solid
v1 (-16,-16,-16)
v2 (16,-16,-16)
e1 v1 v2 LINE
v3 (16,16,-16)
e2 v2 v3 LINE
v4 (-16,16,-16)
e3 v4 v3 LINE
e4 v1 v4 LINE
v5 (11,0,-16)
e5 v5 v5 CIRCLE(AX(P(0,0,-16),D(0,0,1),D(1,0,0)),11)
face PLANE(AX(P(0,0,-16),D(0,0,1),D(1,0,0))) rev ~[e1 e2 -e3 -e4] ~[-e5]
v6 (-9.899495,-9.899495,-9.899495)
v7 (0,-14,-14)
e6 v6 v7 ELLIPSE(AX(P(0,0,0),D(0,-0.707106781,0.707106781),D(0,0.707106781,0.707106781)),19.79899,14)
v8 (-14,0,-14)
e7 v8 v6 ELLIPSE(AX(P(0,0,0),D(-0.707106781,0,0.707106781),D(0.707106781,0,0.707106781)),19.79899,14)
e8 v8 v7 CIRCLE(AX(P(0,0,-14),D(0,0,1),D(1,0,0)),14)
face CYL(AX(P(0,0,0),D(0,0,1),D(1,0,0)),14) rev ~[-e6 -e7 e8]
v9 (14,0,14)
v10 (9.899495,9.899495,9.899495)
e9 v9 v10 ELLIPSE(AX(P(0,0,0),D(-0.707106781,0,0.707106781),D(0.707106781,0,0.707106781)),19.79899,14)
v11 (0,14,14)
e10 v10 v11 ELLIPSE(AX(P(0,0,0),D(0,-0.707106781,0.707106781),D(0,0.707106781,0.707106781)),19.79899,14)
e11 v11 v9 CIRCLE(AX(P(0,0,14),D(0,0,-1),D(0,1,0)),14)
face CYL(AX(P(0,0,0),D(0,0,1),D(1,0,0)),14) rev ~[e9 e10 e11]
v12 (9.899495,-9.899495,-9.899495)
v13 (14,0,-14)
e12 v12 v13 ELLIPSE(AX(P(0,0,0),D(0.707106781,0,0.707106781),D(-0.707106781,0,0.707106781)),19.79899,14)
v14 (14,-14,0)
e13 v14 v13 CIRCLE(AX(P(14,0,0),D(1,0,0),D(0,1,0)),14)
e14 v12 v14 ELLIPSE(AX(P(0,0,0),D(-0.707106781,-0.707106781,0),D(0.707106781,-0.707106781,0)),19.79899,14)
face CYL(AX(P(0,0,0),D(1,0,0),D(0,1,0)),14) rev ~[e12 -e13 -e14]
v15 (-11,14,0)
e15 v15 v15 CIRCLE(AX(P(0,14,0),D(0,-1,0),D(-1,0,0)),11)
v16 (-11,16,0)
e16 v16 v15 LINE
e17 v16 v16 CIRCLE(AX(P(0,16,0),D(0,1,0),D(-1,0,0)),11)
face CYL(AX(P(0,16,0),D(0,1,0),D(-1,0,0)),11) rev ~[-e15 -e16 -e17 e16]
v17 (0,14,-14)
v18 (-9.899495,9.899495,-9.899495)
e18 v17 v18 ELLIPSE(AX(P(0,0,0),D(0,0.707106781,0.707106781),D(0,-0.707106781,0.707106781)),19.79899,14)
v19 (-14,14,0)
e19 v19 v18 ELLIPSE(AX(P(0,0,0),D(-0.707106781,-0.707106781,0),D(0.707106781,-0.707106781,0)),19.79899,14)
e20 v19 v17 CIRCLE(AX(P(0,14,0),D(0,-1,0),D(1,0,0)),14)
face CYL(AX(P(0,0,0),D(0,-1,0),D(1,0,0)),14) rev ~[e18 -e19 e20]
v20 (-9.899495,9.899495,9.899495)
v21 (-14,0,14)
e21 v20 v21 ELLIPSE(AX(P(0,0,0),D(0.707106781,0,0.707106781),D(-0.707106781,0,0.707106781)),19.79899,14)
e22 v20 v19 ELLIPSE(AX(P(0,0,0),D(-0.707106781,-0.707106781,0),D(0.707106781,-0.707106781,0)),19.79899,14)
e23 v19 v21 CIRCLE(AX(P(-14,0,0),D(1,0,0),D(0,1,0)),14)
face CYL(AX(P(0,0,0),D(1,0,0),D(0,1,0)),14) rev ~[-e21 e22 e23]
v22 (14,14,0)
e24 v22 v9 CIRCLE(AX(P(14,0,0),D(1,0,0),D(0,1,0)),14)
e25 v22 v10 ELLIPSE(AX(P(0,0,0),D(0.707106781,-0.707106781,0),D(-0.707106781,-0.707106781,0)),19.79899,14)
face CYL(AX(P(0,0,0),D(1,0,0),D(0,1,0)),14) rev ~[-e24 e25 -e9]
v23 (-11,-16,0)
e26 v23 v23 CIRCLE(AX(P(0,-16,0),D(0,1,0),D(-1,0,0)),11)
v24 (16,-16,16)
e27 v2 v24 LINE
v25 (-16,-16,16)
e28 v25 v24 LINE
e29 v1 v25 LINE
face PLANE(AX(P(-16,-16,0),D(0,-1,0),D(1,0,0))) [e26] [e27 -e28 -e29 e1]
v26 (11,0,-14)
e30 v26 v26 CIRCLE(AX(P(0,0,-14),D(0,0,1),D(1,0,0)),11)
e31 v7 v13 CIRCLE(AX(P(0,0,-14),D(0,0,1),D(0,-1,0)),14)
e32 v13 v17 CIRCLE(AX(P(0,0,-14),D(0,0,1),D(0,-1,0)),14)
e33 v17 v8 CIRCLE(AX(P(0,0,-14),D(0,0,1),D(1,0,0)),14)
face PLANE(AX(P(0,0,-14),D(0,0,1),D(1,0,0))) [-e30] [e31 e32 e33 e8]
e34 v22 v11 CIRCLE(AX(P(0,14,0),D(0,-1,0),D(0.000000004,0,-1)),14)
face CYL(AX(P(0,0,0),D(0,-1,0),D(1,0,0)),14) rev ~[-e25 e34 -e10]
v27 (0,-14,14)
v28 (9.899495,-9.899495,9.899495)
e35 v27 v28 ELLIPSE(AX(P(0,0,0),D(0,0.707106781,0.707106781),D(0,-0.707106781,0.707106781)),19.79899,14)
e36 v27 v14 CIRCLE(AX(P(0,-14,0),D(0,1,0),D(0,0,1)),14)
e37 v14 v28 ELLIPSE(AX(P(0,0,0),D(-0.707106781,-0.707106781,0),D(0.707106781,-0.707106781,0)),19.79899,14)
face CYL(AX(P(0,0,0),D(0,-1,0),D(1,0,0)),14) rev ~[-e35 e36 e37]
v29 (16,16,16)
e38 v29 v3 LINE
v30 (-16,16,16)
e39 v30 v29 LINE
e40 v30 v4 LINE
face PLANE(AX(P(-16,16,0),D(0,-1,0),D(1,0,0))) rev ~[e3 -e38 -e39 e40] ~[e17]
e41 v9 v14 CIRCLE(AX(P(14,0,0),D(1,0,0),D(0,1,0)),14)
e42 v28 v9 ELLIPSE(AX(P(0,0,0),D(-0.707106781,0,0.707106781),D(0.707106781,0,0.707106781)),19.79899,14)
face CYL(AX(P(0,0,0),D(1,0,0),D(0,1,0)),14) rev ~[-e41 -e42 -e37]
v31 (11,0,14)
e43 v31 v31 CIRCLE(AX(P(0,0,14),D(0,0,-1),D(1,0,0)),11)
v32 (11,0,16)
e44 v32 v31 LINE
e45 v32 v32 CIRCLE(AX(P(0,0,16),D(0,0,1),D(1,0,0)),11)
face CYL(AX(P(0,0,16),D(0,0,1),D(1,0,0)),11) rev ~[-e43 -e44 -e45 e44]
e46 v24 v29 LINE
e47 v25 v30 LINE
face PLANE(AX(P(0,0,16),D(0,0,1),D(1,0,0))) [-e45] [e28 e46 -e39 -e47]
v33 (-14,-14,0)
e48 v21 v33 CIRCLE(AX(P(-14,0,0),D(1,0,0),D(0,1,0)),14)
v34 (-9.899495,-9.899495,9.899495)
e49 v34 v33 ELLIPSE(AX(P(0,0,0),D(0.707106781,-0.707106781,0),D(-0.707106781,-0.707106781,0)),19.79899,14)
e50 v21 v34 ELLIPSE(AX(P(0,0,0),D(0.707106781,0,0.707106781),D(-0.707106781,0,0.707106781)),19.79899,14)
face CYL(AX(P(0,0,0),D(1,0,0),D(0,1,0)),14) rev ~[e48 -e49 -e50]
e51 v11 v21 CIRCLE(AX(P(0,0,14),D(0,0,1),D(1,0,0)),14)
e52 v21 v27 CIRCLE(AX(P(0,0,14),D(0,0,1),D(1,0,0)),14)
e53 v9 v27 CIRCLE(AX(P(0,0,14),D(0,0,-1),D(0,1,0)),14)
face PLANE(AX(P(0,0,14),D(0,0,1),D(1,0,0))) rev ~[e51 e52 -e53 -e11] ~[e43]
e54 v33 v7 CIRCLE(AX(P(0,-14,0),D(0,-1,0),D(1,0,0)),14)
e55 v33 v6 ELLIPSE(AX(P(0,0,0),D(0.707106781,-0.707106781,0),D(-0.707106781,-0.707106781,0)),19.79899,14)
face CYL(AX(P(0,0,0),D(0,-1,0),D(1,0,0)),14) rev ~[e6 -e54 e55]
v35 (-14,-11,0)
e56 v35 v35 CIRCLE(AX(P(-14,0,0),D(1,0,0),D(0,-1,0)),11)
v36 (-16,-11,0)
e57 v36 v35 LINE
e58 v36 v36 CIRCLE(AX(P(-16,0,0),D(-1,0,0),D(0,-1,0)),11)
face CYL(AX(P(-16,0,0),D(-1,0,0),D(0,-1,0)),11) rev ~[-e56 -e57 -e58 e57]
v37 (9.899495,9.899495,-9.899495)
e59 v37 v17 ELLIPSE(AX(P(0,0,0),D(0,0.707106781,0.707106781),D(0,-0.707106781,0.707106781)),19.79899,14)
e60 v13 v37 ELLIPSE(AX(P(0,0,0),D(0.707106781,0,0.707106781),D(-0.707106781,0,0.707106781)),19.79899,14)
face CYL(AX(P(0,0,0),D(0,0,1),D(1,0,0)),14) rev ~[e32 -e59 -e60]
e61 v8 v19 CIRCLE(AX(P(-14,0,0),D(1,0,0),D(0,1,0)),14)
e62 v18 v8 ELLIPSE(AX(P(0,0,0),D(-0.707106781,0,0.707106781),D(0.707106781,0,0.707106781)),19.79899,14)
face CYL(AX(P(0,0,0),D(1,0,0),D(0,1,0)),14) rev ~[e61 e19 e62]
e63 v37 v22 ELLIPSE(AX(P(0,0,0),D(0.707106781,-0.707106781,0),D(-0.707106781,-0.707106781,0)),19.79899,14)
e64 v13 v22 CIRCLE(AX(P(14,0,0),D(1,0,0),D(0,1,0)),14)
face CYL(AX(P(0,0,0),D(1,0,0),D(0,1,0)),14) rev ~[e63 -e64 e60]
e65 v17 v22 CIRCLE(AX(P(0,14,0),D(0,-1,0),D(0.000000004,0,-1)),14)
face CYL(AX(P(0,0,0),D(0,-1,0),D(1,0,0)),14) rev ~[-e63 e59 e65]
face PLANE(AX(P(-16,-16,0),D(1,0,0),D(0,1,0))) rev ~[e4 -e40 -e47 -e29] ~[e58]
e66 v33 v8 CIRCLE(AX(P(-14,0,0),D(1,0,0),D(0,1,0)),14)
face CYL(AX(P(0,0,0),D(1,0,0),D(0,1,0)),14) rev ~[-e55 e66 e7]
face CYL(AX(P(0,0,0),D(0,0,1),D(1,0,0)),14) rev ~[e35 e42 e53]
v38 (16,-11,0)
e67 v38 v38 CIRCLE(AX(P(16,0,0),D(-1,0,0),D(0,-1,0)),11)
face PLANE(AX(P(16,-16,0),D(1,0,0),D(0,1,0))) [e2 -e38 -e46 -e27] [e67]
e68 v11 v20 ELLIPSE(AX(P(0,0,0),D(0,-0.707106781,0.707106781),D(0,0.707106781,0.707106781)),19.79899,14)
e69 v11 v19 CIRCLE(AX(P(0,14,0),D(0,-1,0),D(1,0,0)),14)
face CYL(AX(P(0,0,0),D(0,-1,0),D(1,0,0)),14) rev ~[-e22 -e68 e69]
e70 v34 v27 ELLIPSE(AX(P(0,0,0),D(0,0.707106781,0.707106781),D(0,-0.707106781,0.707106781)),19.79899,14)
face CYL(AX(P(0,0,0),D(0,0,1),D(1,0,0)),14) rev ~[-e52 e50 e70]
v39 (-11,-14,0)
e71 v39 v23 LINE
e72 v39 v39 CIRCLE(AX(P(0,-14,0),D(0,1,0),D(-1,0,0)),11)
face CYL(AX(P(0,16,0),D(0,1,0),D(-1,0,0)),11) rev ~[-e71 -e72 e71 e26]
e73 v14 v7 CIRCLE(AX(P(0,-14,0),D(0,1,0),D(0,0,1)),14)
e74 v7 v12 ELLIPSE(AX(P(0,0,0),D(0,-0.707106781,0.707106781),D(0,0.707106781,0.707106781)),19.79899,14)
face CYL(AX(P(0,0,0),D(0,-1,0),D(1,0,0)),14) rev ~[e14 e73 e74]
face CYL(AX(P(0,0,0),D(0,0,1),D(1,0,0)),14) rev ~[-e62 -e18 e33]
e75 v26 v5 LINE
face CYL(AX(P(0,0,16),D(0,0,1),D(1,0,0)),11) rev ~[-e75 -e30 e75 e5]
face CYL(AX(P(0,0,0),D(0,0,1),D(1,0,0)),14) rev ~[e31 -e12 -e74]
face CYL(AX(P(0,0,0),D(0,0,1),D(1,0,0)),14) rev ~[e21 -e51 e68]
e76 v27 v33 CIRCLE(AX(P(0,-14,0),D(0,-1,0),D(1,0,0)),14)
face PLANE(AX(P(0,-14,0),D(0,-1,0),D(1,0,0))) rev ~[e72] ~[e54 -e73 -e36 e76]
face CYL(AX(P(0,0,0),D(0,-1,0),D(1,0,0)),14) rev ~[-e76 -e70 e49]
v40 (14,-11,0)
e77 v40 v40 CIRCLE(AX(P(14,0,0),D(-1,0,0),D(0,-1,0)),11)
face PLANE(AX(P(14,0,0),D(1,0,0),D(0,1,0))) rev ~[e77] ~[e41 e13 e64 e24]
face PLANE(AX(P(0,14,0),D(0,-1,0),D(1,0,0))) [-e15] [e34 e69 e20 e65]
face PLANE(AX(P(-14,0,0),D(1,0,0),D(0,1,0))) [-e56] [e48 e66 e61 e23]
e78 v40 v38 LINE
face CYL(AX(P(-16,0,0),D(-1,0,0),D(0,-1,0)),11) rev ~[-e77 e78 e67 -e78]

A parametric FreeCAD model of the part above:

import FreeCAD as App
import Part
import Sketcher
from FreeCAD import Vector
Q = App.Units.Quantity

doc = App.newDocument("Part")
body = doc.addObject("PartDesign::Body", "Body")

sketch1 = body.newObject("Sketcher::SketchObject", "Sketch")
sketch1.AttachmentSupport = (doc.getObject("XY_Plane"), [""])
sketch1.MapMode = "FlatFace"
sketch1.addGeometry([
    Part.LineSegment(Vector(-16, 16, 0), Vector(-16, -16, 0)),
    Part.LineSegment(Vector(-16, -16, 0), Vector(16, -16, 0)),
    Part.LineSegment(Vector(16, -16, 0), Vector(16, 16, 0)),
    Part.LineSegment(Vector(16, 16, 0), Vector(-16, 16, 0)),
], False)
sketch1.addConstraint([
    Sketcher.Constraint("Coincident", 0, 2, 1, 1),
    Sketcher.Constraint("Coincident", 1, 2, 2, 1),
    Sketcher.Constraint("Coincident", 2, 2, 3, 1),
    Sketcher.Constraint("Coincident", 3, 2, 0, 1),
    Sketcher.Constraint("Vertical", 0),
    Sketcher.Constraint("Horizontal", 1),
    Sketcher.Constraint("Vertical", 2),
    Sketcher.Constraint("Horizontal", 3),
    Sketcher.Constraint("Symmetric", 0, 2, 2, 2, -1, 1),
    Sketcher.Constraint("Equal", 3, 0),
    Sketcher.Constraint("DistanceX", 1, 1, 1, 2, Q("32 mm")),
])
pad1 = body.newObject("PartDesign::Pad", "Pad")
pad1.Profile = sketch1
pad1.Length = 32
pad1.Midplane = True

sketch2 = body.newObject("Sketcher::SketchObject", "Sketch001")
sketch2.AttachmentSupport = (doc.getObject("YZ_Plane"), [""])
sketch2.MapMode = "FlatFace"
sketch2.AttachmentOffset = App.Placement(Vector(0, 0, -16), App.Rotation())
sketch2.addGeometry(Part.Circle(Vector(0, 0, 0), Vector(0, 0, 1), 11), False)
sketch2.addConstraint([
    Sketcher.Constraint("Coincident", 0, 3, -1, 1),
    Sketcher.Constraint("Diameter", 0, Q("22 mm")),
])
pocket1 = body.newObject("PartDesign::Pocket", "Pocket")
pocket1.Profile = sketch2
pocket1.Type = "ThroughAll"
pocket1.Reversed = True

sketch3 = body.newObject("Sketcher::SketchObject", "Sketch002")
sketch3.AttachmentSupport = (doc.getObject("XY_Plane"), [""])
sketch3.MapMode = "FlatFace"
sketch3.AttachmentOffset = App.Placement(Vector(0, 0, 16), App.Rotation())
sketch3.addGeometry(Part.Circle(Vector(0, 0, 0), Vector(0, 0, 1), 11), False)
sketch3.addConstraint([
    Sketcher.Constraint("Coincident", 0, 3, -1, 1),
    Sketcher.Constraint("Diameter", 0, Q("22 mm")),
])
pocket2 = body.newObject("PartDesign::Pocket", "Pocket001")
pocket2.Profile = sketch3
pocket2.Type = "ThroughAll"

sketch4 = body.newObject("Sketcher::SketchObject", "Sketch003")
sketch4.AttachmentSupport = (doc.getObject("XZ_Plane"), [""])
sketch4.MapMode = "FlatFace"
sketch4.AttachmentOffset = App.Placement(Vector(0, 0, -16), App.Rotation())
sketch4.addGeometry(Part.Circle(Vector(0, 0, 0), Vector(0, 0, 1), 11), False)
sketch4.addConstraint([
    Sketcher.Constraint("Coincident", 0, 3, -1, 1),
    Sketcher.Constraint("Diameter", 0, Q("22 mm")),
])
pocket3 = body.newObject("PartDesign::Pocket", "Pocket002")
pocket3.Profile = sketch4
pocket3.Type = "ThroughAll"
pocket3.Reversed = True

sketch5 = body.newObject("Sketcher::SketchObject", "Sketch004")
sketch5.AttachmentSupport = (doc.getObject("XY_Plane"), [""])
sketch5.MapMode = "FlatFace"
sketch5.addGeometry(Part.Circle(Vector(0, 0, 0), Vector(0, 0, 1), 14), False)
sketch5.addConstraint([
    Sketcher.Constraint("Coincident", 0, 3, -1, 1),
    Sketcher.Constraint("Diameter", 0, Q("28 mm")),
])
pocket4 = body.newObject("PartDesign::Pocket", "Pocket003")
pocket4.Profile = sketch5
pocket4.Length = 28
pocket4.Midplane = True

sketch6 = body.newObject("Sketcher::SketchObject", "Sketch005")
sketch6.AttachmentSupport = (doc.getObject("XZ_Plane"), [""])
sketch6.MapMode = "FlatFace"
sketch6.addGeometry(Part.Circle(Vector(0, 0, 0), Vector(0, 0, 1), 14), False)
sketch6.addConstraint([
    Sketcher.Constraint("Coincident", 0, 3, -1, 1),
    Sketcher.Constraint("Diameter", 0, Q("28 mm")),
])
pocket5 = body.newObject("PartDesign::Pocket", "Pocket004")
pocket5.Profile = sketch6
pocket5.Length = 28
pocket5.Midplane = True

sketch7 = body.newObject("Sketcher::SketchObject", "Sketch006")
sketch7.AttachmentSupport = (doc.getObject("YZ_Plane"), [""])
sketch7.MapMode = "FlatFace"
sketch7.addGeometry(Part.Circle(Vector(0, 0, 0), Vector(0, 0, 1), 14), False)
sketch7.addConstraint([
    Sketcher.Constraint("Coincident", 0, 3, -1, 1),
    Sketcher.Constraint("Diameter", 0, Q("28 mm")),
])
pocket6 = body.newObject("PartDesign::Pocket", "Pocket005")
pocket6.Profile = sketch7
pocket6.Length = 28
pocket6.Midplane = True

doc.recompute()
